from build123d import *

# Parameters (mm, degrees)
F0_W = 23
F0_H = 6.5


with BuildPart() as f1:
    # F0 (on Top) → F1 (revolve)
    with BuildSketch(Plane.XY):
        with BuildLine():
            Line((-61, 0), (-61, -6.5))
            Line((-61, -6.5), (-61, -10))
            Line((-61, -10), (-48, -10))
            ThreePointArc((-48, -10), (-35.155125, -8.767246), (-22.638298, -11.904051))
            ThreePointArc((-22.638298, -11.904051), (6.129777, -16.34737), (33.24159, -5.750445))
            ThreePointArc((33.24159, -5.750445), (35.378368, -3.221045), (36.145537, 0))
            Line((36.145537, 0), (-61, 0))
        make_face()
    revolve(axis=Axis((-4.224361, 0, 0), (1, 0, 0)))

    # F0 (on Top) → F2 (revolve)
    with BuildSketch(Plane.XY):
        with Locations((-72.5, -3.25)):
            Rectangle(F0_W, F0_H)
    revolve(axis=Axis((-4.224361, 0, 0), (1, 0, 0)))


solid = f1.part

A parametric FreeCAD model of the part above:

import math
import FreeCAD as App
import Part
import Sketcher

doc = App.newDocument("Part")
body = doc.addObject("PartDesign::Body", "Body")

sketch1 = body.newObject("Sketcher::SketchObject", "Sketch")
sketch1.AttachmentSupport = (doc.getObject("XY_Plane"), [""])
sketch1.MapMode = "FlatFace"
sketch1.addGeometry([
    Part.LineSegment(App.Vector(-61, 0, 0), App.Vector(-61, -10, 0)),
    Part.LineSegment(App.Vector(-61, -10, 0), App.Vector(-48, -10, 0)),
    Part.ArcOfCircle(Part.Circle(App.Vector(-38, -46.6606, 0), App.Vector(0, 0, 1), 37.999994), math.radians(66.155526), math.radians(105.257526)),
    Part.ArcOfCircle(Part.Circle(App.Vector(-0.000001, 39.316136, 0), App.Vector(0, 0, 1), 56), math.radians(-113.844469), math.radians(-53.587119)),
    Part.ArcOfCircle(Part.Circle(App.Vector(29.000005, -0.000003, 0), App.Vector(0, 0, 1), 7.145532), math.radians(-53.587132), math.radians(0.000021)),
    Part.LineSegment(App.Vector(36.145537, 0, 0), App.Vector(-61, 0, 0)),
], False)
sketch1.addConstraint([
    Sketcher.Constraint("Coincident", 0, 2, 1, 1),
    Sketcher.Constraint("Coincident", 1, 2, 2, 2),
    Sketcher.Constraint("Tangent", 2, 1, 3, 1),
    Sketcher.Constraint("Tangent", 3, 2, 4, 1),
    Sketcher.Constraint("Coincident", 4, 2, 5, 1),
    Sketcher.Constraint("Coincident", 5, 2, 0, 1),
    Sketcher.Constraint("Vertical", 0),
    Sketcher.Constraint("Horizontal", 1),
    Sketcher.Constraint("Horizontal", 5),
    Sketcher.Constraint("PointOnObject", 3, 3, -2),
    Sketcher.Constraint("PointOnObject", 4, 2, -1),
    Sketcher.Constraint("Radius", 3, 56.0),
    Sketcher.Constraint("DistanceX", 1, 1, 1, 2, 13.0),
    Sketcher.Constraint("DistanceY", 0, 2, 0, 1, 10.0),
    Sketcher.Constraint("DistanceX", 2, 3, -1, 1, 38.0),
    Sketcher.Constraint("DistanceX", 0, 2, -1, 1, 61.0),
    Sketcher.Constraint("Radius", 2, 37.999994),
    Sketcher.Constraint("Radius", 4, 7.145532),
    Sketcher.Constraint("DistanceX", 5, 2, 5, 1, 97.145537),
])
revolution = body.newObject("PartDesign::Revolution", "Revolution")
revolution.Profile = sketch1
revolution.ReferenceAxis = (sketch1, ["H_Axis"])
revolution.Angle = 360

sketch2 = body.newObject("Sketcher::SketchObject", "Sketch001")
sketch2.AttachmentSupport = (doc.getObject("XY_Plane"), [""])
sketch2.MapMode = "FlatFace"
sketch2.addGeometry([
    Part.LineSegment(App.Vector(-84, 0, 0), App.Vector(-84, -6.5, 0)),
    Part.LineSegment(App.Vector(-84, -6.5, 0), App.Vector(-61, -6.5, 0)),
    Part.LineSegment(App.Vector(-61, -6.5, 0), App.Vector(-61, 0, 0)),
    Part.LineSegment(App.Vector(-61, 0, 0), App.Vector(-84, 0, 0)),
], False)
sketch2.addConstraint([
    Sketcher.Constraint("Coincident", 0, 2, 1, 1),
    Sketcher.Constraint("Coincident", 1, 2, 2, 1),
    Sketcher.Constraint("Coincident", 2, 2, 3, 1),
    Sketcher.Constraint("Coincident", 3, 2, 0, 1),
    Sketcher.Constraint("Vertical", 0),
    Sketcher.Constraint("Horizontal", 1),
    Sketcher.Constraint("Vertical", 2),
    Sketcher.Constraint("Horizontal", 3),
    Sketcher.Constraint("PointOnObject", 2, 2, -1),
    Sketcher.Constraint("DistanceX", 1, 1, 1, 2, 23.0),
    Sketcher.Constraint("DistanceY", 0, 2, 0, 1, 6.5),
    Sketcher.Constraint("DistanceX", 0, 2, -1, 1, 84.0),
])
revolution2 = body.newObject("PartDesign::Revolution", "Revolution001")
revolution2.Profile = sketch2
revolution2.ReferenceAxis = (sketch2, ["H_Axis"])
revolution2.Angle = 360

doc.recompute()
